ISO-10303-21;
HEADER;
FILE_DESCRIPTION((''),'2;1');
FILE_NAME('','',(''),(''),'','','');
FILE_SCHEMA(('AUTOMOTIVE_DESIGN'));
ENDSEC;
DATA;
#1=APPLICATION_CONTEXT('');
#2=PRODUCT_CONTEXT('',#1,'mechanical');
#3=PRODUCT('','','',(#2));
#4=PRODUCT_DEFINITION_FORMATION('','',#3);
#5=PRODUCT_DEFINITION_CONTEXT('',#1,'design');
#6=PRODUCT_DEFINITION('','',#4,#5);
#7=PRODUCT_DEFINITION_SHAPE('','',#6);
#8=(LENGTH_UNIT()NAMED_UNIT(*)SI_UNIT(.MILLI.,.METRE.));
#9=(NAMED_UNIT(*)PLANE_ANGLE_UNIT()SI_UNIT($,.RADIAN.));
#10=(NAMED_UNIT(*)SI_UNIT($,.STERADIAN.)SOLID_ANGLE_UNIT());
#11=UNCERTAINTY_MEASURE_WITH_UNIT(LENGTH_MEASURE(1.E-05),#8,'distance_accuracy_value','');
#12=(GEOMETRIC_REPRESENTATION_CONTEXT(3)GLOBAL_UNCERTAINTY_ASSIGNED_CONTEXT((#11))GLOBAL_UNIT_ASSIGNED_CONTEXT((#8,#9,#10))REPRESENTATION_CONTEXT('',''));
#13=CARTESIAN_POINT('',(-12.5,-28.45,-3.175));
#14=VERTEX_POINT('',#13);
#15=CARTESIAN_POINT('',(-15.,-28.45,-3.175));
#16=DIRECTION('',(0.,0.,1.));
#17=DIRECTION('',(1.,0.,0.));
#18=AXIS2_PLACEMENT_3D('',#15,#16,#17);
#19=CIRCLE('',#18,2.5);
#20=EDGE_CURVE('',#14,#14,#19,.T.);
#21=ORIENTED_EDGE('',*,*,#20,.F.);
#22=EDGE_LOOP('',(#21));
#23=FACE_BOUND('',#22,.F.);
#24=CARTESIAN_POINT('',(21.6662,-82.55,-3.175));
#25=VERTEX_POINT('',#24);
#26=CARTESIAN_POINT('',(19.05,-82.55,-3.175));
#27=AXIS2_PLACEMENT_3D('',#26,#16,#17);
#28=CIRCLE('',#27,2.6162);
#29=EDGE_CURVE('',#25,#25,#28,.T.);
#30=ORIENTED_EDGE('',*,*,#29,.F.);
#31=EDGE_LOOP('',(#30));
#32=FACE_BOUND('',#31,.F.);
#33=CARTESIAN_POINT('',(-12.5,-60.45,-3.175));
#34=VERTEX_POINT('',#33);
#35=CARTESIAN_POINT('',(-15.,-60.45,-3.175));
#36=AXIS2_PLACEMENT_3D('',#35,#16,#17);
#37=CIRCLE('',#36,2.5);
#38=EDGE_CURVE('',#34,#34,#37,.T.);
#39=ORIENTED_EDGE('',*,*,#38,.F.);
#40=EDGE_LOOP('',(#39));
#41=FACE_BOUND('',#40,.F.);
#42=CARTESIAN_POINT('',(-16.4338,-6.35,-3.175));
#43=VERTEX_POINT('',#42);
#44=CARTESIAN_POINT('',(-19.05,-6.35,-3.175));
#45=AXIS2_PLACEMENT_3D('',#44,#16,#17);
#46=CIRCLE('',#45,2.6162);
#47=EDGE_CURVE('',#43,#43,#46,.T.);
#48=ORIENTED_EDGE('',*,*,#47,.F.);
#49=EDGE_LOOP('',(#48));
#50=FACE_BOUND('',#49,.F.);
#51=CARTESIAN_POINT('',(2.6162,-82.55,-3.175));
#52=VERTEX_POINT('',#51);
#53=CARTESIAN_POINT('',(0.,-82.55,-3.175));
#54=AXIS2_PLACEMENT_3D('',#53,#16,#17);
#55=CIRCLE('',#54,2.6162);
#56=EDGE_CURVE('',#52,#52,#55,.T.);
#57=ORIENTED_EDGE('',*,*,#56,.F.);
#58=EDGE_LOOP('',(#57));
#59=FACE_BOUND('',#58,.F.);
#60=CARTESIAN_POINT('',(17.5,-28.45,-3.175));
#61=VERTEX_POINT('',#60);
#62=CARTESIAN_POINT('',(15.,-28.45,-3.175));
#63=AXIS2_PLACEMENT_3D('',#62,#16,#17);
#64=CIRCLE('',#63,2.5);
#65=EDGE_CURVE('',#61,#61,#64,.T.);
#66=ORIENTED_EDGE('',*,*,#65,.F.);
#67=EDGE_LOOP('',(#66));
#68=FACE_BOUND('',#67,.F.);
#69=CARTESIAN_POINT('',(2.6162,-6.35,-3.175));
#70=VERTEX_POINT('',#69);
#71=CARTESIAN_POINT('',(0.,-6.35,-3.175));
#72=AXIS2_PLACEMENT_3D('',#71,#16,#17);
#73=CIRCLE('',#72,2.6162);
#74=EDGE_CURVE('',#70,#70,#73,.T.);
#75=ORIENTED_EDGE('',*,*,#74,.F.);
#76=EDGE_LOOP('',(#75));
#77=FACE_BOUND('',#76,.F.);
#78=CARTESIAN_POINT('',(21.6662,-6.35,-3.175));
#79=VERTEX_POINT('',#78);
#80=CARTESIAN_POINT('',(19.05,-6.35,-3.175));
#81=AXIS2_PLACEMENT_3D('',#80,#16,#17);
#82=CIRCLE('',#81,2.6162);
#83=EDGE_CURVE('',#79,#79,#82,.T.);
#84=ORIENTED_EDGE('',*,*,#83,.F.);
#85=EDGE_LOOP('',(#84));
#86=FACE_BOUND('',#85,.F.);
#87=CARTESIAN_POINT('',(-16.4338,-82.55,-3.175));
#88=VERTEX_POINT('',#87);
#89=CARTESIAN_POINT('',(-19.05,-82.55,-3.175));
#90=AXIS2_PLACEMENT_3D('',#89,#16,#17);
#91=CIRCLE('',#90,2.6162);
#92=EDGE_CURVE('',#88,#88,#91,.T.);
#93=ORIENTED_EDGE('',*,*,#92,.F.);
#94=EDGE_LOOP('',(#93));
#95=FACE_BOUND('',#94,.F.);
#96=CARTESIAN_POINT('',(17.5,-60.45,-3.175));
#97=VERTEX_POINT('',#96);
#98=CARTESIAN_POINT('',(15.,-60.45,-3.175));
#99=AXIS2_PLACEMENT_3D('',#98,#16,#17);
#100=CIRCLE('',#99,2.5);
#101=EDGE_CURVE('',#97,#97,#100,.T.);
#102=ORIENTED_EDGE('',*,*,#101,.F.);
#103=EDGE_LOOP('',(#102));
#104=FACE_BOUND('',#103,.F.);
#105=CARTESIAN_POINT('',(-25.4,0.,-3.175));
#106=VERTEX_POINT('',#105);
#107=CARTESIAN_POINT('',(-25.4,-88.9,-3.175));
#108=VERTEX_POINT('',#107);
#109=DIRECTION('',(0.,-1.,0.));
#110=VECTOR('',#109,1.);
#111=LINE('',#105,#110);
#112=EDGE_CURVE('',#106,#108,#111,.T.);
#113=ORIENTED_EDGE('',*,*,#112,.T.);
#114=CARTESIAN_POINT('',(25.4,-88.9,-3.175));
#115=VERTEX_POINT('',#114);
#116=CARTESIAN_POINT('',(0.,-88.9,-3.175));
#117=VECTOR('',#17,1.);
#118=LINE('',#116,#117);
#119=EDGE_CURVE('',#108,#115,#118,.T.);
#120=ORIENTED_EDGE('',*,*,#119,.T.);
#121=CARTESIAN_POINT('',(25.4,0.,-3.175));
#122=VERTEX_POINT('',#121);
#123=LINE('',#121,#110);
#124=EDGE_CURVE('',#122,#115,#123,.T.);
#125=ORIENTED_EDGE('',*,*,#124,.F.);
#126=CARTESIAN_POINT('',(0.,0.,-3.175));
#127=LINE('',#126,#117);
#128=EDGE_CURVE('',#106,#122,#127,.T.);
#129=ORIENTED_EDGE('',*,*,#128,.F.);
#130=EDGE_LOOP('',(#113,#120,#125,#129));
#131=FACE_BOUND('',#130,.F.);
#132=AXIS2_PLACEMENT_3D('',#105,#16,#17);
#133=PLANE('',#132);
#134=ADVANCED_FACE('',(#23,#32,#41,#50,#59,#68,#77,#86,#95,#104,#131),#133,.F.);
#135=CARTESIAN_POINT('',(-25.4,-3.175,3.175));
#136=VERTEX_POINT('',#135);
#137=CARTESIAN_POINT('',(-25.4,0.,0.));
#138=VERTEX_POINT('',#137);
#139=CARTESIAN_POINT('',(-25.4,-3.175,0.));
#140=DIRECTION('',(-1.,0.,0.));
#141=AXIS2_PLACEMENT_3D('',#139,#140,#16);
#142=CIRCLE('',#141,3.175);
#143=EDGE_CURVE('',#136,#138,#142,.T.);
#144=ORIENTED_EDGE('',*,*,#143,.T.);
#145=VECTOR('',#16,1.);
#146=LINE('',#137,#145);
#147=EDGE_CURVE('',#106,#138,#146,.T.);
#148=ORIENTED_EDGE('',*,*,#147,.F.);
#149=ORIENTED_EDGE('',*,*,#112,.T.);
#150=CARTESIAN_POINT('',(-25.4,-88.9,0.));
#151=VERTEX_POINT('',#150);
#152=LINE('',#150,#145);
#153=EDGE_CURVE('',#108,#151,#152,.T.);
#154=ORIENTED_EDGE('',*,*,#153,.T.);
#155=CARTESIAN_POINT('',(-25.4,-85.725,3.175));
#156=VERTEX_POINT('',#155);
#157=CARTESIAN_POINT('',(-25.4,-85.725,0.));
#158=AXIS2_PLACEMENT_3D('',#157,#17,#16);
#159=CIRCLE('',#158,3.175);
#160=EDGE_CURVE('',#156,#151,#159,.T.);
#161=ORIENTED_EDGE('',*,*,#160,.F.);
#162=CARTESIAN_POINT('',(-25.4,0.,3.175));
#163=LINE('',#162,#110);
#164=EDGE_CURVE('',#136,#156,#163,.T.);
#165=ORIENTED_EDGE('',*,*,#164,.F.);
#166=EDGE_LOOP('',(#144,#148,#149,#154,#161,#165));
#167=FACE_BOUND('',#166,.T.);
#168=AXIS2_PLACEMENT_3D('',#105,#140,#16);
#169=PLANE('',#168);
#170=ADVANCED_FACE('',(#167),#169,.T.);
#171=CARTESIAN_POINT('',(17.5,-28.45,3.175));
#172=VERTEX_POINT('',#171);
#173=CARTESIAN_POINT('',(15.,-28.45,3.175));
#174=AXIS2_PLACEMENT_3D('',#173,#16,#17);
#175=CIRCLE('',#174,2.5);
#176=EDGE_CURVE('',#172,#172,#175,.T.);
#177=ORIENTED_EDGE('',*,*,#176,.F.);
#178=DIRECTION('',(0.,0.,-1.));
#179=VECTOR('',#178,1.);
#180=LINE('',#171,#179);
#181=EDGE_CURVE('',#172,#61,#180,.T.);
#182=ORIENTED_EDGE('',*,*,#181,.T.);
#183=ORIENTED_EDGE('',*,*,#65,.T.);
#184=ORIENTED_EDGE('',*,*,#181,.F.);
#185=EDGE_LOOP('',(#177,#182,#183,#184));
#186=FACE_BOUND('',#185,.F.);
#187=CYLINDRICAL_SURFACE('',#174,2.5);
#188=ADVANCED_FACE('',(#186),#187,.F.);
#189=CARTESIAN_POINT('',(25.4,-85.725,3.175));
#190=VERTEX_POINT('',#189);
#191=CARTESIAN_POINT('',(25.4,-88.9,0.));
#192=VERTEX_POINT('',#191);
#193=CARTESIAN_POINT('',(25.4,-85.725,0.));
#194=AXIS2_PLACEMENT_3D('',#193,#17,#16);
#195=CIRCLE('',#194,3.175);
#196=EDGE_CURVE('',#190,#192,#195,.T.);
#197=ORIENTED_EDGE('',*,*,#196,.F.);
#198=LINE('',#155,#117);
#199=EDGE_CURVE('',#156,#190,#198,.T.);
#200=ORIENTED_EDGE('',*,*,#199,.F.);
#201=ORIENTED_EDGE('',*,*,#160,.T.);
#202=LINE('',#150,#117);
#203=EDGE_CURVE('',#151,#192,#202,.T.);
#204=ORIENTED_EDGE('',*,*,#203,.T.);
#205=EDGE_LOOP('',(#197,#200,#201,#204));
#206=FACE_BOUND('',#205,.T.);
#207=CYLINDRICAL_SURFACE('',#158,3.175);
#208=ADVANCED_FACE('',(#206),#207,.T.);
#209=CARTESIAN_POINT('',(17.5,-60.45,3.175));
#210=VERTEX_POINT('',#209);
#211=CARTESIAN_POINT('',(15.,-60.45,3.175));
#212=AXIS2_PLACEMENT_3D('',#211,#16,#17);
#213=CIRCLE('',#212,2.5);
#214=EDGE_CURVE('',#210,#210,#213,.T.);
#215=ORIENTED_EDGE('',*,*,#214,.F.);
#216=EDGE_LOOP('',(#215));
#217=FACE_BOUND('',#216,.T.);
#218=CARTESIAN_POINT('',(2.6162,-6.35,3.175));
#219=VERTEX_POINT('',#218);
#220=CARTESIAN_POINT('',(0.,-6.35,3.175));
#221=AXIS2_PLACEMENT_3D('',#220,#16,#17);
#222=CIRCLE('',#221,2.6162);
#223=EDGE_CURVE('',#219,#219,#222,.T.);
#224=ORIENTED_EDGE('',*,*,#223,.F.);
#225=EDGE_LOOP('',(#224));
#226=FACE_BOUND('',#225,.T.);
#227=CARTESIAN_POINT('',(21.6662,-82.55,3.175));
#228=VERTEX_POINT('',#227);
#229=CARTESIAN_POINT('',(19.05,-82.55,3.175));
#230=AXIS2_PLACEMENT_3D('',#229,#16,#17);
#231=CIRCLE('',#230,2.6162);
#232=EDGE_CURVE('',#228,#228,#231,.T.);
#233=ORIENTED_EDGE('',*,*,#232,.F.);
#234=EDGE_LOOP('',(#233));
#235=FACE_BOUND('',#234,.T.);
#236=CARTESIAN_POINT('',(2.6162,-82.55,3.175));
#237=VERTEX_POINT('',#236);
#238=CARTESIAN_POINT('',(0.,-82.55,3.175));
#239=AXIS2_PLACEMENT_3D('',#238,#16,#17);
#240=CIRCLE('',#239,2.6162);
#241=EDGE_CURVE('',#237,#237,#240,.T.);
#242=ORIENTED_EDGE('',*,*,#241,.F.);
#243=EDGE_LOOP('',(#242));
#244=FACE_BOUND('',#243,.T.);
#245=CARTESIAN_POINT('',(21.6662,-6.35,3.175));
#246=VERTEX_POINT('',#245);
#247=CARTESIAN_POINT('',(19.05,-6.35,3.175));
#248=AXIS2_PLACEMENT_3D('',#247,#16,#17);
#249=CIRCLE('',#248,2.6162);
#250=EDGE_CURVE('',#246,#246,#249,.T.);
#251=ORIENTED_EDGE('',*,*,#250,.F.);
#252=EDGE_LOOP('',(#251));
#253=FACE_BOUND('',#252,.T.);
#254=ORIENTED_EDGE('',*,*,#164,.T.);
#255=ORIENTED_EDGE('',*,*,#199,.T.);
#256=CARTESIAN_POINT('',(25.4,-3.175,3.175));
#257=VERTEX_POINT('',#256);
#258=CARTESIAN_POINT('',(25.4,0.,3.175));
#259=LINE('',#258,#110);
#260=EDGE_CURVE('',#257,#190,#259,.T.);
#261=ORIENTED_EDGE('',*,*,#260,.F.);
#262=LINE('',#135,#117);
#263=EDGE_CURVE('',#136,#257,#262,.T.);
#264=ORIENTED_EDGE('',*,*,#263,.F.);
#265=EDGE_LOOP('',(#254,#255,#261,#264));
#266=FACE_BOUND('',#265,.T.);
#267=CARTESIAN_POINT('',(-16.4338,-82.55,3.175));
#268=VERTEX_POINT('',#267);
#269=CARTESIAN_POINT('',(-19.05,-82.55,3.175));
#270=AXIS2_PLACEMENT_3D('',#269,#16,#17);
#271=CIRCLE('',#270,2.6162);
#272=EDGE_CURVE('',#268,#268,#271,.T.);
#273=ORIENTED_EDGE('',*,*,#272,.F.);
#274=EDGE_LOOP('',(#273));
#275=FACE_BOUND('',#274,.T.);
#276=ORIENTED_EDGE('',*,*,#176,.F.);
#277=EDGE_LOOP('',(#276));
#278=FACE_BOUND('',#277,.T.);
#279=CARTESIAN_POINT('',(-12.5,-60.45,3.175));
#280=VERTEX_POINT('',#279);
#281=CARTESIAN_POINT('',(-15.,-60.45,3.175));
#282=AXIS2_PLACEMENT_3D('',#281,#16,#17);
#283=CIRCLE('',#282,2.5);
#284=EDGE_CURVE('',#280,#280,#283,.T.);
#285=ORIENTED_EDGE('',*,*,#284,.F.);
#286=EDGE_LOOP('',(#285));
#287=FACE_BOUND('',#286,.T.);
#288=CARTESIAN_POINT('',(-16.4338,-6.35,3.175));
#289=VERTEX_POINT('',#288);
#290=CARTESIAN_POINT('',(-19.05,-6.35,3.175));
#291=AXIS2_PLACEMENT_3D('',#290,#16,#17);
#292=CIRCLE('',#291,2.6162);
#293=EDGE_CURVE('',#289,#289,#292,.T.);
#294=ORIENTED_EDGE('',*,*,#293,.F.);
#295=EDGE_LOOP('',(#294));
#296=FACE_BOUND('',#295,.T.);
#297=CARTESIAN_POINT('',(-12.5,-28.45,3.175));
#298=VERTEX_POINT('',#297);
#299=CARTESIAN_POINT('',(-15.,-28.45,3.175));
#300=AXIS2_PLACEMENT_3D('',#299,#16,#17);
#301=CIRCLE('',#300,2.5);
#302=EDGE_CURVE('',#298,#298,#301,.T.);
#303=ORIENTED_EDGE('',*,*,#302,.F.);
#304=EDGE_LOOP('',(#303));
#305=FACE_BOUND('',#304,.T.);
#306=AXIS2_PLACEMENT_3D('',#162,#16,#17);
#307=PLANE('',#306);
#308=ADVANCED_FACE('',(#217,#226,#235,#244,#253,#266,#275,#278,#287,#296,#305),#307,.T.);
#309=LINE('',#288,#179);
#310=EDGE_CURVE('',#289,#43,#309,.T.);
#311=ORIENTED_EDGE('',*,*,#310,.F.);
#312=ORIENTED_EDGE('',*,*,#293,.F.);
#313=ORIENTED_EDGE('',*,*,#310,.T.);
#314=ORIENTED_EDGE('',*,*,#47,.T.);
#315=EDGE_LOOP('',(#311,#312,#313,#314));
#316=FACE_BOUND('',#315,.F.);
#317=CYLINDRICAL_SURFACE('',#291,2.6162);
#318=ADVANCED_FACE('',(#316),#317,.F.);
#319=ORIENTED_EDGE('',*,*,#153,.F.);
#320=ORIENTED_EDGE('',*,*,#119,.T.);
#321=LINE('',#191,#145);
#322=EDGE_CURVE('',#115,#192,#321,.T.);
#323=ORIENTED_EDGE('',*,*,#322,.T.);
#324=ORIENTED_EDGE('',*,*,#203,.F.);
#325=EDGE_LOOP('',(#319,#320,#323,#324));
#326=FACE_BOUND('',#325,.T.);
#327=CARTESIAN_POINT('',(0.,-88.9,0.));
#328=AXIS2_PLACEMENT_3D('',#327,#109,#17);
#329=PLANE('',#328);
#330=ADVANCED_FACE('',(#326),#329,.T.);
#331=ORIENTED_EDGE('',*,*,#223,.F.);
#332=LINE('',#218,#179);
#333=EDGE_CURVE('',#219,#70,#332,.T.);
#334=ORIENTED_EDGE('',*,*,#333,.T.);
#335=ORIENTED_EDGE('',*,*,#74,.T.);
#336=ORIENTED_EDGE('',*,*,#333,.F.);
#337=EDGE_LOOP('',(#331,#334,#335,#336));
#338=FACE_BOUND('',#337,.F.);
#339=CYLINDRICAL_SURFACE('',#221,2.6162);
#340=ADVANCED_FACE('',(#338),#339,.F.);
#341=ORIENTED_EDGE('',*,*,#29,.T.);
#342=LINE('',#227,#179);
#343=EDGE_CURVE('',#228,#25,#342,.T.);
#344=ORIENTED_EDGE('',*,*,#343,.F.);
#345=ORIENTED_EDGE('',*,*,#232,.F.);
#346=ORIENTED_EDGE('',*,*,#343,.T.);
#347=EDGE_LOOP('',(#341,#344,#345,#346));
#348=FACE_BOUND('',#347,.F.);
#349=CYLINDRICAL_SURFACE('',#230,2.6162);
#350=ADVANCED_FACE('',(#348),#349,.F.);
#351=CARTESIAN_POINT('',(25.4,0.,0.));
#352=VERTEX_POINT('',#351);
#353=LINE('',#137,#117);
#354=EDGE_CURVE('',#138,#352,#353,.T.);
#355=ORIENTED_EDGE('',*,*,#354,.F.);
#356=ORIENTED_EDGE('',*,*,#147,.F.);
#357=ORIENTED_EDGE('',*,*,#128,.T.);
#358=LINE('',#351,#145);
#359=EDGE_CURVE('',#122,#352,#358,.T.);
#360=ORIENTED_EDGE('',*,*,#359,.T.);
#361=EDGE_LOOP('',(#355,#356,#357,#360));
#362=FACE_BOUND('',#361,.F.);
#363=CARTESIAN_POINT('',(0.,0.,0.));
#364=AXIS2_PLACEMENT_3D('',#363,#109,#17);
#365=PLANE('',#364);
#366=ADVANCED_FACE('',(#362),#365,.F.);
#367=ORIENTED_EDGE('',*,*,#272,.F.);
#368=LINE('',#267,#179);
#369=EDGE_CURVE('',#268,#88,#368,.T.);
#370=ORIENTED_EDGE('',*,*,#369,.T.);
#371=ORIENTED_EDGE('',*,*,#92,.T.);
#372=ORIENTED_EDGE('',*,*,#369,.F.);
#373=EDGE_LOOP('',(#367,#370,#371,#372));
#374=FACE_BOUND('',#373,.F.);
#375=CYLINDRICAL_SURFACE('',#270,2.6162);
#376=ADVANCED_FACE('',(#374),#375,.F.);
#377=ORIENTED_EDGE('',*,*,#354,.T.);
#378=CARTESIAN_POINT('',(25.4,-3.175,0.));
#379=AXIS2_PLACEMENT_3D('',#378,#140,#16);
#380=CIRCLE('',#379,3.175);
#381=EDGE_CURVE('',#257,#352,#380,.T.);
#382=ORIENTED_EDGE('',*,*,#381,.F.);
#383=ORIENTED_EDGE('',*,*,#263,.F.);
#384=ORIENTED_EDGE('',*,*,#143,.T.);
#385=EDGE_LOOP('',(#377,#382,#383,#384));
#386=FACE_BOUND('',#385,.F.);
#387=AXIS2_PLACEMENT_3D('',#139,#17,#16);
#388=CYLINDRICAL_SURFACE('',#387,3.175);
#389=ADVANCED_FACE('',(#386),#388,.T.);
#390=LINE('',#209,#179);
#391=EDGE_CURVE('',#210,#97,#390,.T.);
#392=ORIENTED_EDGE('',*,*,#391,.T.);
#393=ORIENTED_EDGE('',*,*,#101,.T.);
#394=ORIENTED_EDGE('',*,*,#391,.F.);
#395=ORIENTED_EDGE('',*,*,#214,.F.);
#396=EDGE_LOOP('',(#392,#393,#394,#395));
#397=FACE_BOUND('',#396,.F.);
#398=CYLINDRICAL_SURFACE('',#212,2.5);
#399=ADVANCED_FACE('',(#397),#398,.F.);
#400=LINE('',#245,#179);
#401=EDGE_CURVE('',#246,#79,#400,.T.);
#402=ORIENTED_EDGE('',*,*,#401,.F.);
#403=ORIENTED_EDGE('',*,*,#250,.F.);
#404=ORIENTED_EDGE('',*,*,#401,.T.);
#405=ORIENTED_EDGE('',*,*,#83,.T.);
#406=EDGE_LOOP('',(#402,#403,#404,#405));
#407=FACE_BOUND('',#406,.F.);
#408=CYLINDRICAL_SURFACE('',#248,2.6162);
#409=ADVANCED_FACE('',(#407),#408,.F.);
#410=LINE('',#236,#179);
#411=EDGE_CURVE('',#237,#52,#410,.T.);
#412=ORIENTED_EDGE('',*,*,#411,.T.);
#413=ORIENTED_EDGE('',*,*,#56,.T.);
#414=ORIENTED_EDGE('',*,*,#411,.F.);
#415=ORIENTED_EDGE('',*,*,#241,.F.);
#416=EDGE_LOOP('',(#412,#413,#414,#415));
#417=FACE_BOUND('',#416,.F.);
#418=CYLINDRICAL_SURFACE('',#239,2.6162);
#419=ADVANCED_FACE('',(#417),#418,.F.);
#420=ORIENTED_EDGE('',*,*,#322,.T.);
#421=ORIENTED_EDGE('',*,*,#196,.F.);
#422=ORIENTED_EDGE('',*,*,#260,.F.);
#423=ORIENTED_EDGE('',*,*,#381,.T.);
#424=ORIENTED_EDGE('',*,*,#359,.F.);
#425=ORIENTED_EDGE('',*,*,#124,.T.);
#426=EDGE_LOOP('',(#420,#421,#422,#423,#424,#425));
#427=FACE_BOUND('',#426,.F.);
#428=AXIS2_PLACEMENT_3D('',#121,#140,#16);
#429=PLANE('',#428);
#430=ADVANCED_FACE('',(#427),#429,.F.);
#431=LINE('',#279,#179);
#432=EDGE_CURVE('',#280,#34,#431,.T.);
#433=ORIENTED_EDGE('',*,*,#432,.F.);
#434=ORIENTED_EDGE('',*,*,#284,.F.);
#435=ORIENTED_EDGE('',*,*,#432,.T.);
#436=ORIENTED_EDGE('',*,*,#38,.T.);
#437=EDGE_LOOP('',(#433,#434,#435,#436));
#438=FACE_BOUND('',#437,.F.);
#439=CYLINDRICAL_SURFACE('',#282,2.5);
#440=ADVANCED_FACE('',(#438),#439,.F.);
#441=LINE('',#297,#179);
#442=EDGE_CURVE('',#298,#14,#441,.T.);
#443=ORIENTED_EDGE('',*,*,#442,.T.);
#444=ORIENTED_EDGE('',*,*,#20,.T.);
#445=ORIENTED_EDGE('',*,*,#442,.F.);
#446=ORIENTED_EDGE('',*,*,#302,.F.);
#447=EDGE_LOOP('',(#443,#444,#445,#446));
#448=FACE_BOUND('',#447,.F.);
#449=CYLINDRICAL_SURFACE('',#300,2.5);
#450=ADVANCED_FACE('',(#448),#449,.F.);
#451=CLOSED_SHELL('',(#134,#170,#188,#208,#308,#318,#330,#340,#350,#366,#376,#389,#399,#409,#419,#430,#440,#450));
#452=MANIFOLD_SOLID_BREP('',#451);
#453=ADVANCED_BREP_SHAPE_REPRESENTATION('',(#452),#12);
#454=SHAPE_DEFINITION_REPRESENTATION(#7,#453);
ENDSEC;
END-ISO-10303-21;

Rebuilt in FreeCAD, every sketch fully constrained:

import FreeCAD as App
import Part
import Sketcher

V = App.Vector
Q = App.Units.Quantity


def edges_at(feature, points):
    """Names of the edges that pass closest to the given points."""
    edges = feature.Shape.Edges
    near = lambda p: min(range(len(edges)), key=lambda i: edges[i].distToShape(Part.Vertex(*p))[0])
    return sorted({f"Edge{near(p) + 1}" for p in points})


def add_polygon(sketch, points):
    """Adds a closed chain of lines whose ends are joined by coincident constraints."""
    first, n = sketch.GeometryCount, len(points)
    for a, b in zip(points, points[1:] + points[:1]):
        sketch.addGeometry(Part.LineSegment(App.Vector(*a, 0), App.Vector(*b, 0)), False)
    for i in range(n):
        sketch.addConstraint(Sketcher.Constraint("Coincident", first + i, 2, first + (i + 1) % n, 1))

doc = App.newDocument("Part")
body = doc.addObject("PartDesign::Body", "Body")

# Sketch on XZ plane
sketch1 = doc.addObject("Sketcher::SketchObject", "Sketch")
body.addObject(sketch1)
sketch1.AttachmentSupport = (doc.XZ_Plane, [""])
sketch1.MapMode = "FlatFace"
add_polygon(sketch1, [(-25, 3), (-25, -3), (25, -3), (25, 3)])  # lines 0-3
sketch1.addConstraint(Sketcher.Constraint("Vertical", 0))
sketch1.addConstraint(Sketcher.Constraint("Horizontal", 1))
sketch1.addConstraint(Sketcher.Constraint("Vertical", 2))
sketch1.addConstraint(Sketcher.Constraint("Horizontal", 3))
sketch1.addConstraint(Sketcher.Constraint("Symmetric", 0, 2, 2, 2, -1, 1))
sketch1.addConstraint(Sketcher.Constraint("DistanceX", 1, 1, 1, 2, Q("2 in")))
sketch1.addConstraint(Sketcher.Constraint("DistanceY", 0, 2, 0, 1, Q("0.25 in")))
pad1 = doc.addObject("PartDesign::Pad", "Pad")
body.addObject(pad1)
pad1.Profile = sketch1
pad1.Length = Q("3.5 in")

# Sketch on XY plane
sketch2 = doc.addObject("Sketcher::SketchObject", "Sketch001")
body.addObject(sketch2)
sketch2.AttachmentSupport = (doc.XY_Plane, [""])
sketch2.MapMode = "FlatFace"
sketch2.AttachmentOffset = App.Placement(V(0, 0, 0.125 * 25.4), App.Rotation())
sketch2.addGeometry(Part.Circle(V(0, -82.5, 0), V(0, 0, 1), 2.6), False)
sketch2.addGeometry(Part.Circle(V(0, -6.3, 0), V(0, 0, 1), 2.6), False)
sketch2.addGeometry(Part.Circle(V(-19.1, -82.5, 0), V(0, 0, 1), 2.6), False)
sketch2.addGeometry(Part.Circle(V(19.1, -82.5, 0), V(0, 0, 1), 2.6), False)
sketch2.addGeometry(Part.Circle(V(19.1, -6.3, 0), V(0, 0, 1), 2.6), False)
sketch2.addGeometry(Part.Circle(V(-19.1, -6.3, 0), V(0, 0, 1), 2.6), False)
sketch2.addGeometry(Part.Circle(V(-15, -60.5, 0), V(0, 0, 1), 2.5), False)
sketch2.addGeometry(Part.Circle(V(15, -60.5, 0), V(0, 0, 1), 2.5), False)
sketch2.addGeometry(Part.Circle(V(15, -28.4, 0), V(0, 0, 1), 2.5), False)
sketch2.addGeometry(Part.Circle(V(-15, -28.4, 0), V(0, 0, 1), 2.5), False)
sketch2.addConstraint(Sketcher.Constraint("Equal", 0, 1))
sketch2.addConstraint(Sketcher.Constraint("Equal", 1, 2))
sketch2.addConstraint(Sketcher.Constraint("Equal", 2, 3))
sketch2.addConstraint(Sketcher.Constraint("Equal", 3, 4))
sketch2.addConstraint(Sketcher.Constraint("Equal", 4, 5))
sketch2.addConstraint(Sketcher.Constraint("Equal", 6, 7))
sketch2.addConstraint(Sketcher.Constraint("Equal", 7, 8))
sketch2.addConstraint(Sketcher.Constraint("Equal", 8, 9))
sketch2.addConstraint(Sketcher.Constraint("Symmetric", 2, 3, 3, 3, -2))
sketch2.addConstraint(Sketcher.Constraint("Symmetric", 4, 3, 5, 3, -2))
sketch2.addConstraint(Sketcher.Constraint("Symmetric", 6, 3, 7, 3, -2))
sketch2.addConstraint(Sketcher.Constraint("Symmetric", 8, 3, 9, 3, -2))
sketch2.addConstraint(Sketcher.Constraint("PointOnObject", 0, 3, -2))
sketch2.addConstraint(Sketcher.Constraint("PointOnObject", 1, 3, -2))
sketch2.addConstraint(Sketcher.Constraint("Horizontal", 0, 3, 2, 3))
sketch2.addConstraint(Sketcher.Constraint("Horizontal", 1, 3, 4, 3))
sketch2.addConstraint(Sketcher.Constraint("Vertical", 3, 3, 4, 3))
sketch2.addConstraint(Sketcher.Constraint("Vertical", 7, 3, 8, 3))
sketch2.addConstraint(Sketcher.Constraint("Diameter", 0, Q("0.206 in")))
sketch2.addConstraint(Sketcher.Constraint("DistanceY", 0, 3, 1, 3, Q("3 in")))
sketch2.addConstraint(Sketcher.Constraint("DistanceX", 2, 3, 3, 3, Q("1.5 in")))
sketch2.addConstraint(Sketcher.Constraint("Diameter", 6, 5.0))
sketch2.addConstraint(Sketcher.Constraint("DistanceY", 0, 3, -1, 1, Q("3.25 in")))
sketch2.addConstraint(Sketcher.Constraint("DistanceX", 6, 3, -1, 1, 15.0))
sketch2.addConstraint(Sketcher.Constraint("DistanceY", 6, 3, -1, 1, 60.45))
sketch2.addConstraint(Sketcher.Constraint("DistanceY", 8, 3, -1, 1, 28.45))
pocket1 = doc.addObject("PartDesign::Pocket", "Pocket")
body.addObject(pocket1)
pocket1.Profile = sketch2
pocket1.Type = "ThroughAll"
doc.recompute()

fillet = doc.addObject("PartDesign::Fillet", "Fillet")
body.addObject(fillet)
fillet.Base = (pocket1, edges_at(pocket1, [(0, 0, 3.175), (0, -88.9, 3.175)]))
fillet.Radius = Q("0.125 in")

doc.recompute()
